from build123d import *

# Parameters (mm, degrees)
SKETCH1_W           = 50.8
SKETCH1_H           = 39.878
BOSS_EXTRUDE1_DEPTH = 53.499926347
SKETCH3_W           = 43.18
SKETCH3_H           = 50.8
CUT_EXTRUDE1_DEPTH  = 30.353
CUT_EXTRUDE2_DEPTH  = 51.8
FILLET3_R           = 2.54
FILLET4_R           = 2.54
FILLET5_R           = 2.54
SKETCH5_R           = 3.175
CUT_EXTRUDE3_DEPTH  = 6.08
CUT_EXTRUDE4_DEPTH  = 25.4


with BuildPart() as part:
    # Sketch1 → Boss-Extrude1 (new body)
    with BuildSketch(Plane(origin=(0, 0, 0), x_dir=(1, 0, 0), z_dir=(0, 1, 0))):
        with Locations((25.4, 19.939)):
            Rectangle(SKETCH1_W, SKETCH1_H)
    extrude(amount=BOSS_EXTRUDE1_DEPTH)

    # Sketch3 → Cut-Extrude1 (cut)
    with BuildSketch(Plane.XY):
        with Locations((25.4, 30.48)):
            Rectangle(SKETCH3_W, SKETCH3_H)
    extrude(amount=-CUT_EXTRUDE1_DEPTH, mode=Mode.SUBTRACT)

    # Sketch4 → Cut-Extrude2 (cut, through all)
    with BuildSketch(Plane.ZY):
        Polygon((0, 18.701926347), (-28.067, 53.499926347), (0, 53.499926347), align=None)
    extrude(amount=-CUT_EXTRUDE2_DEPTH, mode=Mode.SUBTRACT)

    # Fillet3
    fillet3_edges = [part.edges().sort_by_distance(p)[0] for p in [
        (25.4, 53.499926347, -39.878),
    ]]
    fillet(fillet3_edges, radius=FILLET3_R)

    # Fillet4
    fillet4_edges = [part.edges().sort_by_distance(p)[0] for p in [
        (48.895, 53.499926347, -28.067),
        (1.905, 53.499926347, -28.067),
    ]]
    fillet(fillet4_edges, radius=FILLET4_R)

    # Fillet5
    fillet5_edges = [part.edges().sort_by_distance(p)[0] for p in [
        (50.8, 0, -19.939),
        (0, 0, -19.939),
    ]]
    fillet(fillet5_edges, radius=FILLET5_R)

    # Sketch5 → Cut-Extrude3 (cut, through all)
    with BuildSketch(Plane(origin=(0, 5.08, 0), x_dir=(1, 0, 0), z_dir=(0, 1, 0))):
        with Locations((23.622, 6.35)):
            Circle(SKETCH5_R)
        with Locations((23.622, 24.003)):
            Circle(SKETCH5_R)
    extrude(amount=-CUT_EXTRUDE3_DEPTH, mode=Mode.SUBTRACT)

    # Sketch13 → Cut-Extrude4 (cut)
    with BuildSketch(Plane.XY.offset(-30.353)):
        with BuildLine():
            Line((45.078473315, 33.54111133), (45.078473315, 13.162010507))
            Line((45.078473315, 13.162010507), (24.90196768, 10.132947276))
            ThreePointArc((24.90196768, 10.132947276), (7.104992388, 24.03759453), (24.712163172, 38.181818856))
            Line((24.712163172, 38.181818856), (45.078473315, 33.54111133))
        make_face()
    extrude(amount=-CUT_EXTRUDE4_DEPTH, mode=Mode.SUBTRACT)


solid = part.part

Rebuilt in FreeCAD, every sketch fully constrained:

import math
import FreeCAD as App
import Part
import Sketcher

V = App.Vector
Q = App.Units.Quantity


def edges_at(feature, points):
    """Names of the edges that pass closest to the given points."""
    edges = feature.Shape.Edges
    near = lambda p: min(range(len(edges)), key=lambda i: edges[i].distToShape(Part.Vertex(*p))[0])
    return sorted({f"Edge{near(p) + 1}" for p in points})

doc = App.newDocument("Part")
params = doc.addObject("Spreadsheet::Sheet", "Params")
for row, (alias, value) in enumerate([
    ("sketch1_width", "2 in"),
    ("sketch1_height", "1.57 in"),
    ("pad1_length", "53.499926 mm"),
    ("sketch2_height", "2 in"),
    ("sketch2_width", "1.7 in"),
    ("pocket1_length", "1.195 in"),
    ("sketch3_width", "1.37 in"),
    ("sketch3_height", "1.105 in"),
    ("fillet_radius", "0.1 in"),
    ("fillet2_radius", "0.1 in"),
    ("fillet3_radius", "0.1 in"),
    ("sketch4_diameter", "0.25 in"),
    ("pocket4_length", "1 in"),
], start=1):
    params.set(f"A{row}", alias)
    params.set(f"B{row}", "=" + value)
    params.setAlias(f"B{row}", alias)

body = doc.addObject("PartDesign::Body", "Body")

sketch1 = body.newObject("Sketcher::SketchObject", "Sketch")
sketch1.AttachmentSupport = (doc.getObject("XZ_Plane"), [""])
sketch1.MapMode = "FlatFace"
sketch1.addGeometry([
    Part.LineSegment(V(0, -40, 0), V(0, 0, 0)),
    Part.LineSegment(V(0, 0, 0), V(51, 0, 0)),
    Part.LineSegment(V(51, 0, 0), V(51, -40, 0)),
    Part.LineSegment(V(51, -40, 0), V(0, -40, 0)),
], False)
sketch1.addConstraint([
    Sketcher.Constraint("Coincident", 0, 2, 1, 1),
    Sketcher.Constraint("Coincident", 1, 2, 2, 1),
    Sketcher.Constraint("Coincident", 2, 2, 3, 1),
    Sketcher.Constraint("Coincident", 3, 2, 0, 1),
    Sketcher.Constraint("Vertical", 0),
    Sketcher.Constraint("Horizontal", 1),
    Sketcher.Constraint("Vertical", 2),
    Sketcher.Constraint("Horizontal", 3),
    Sketcher.Constraint("Coincident", 0, 2, -1, 1),
    Sketcher.Constraint("DistanceX", 1, 1, 1, 2, Q("2 in")),
    Sketcher.Constraint("DistanceY", 0, 1, 0, 2, Q("1.57 in")),
])
sketch1.setExpression("Constraints[9]", "Params.sketch1_width")
sketch1.setExpression("Constraints[10]", "Params.sketch1_height")
pad1 = body.newObject("PartDesign::Pad", "Pad")
pad1.Profile = sketch1
pad1.setExpression("Length", "Params.pad1_length")
pad1.Reversed = True

sketch2 = body.newObject("Sketcher::SketchObject", "Sketch001")
sketch2.AttachmentSupport = (doc.getObject("XY_Plane"), [""])
sketch2.MapMode = "FlatFace"
sketch2.addGeometry([
    Part.LineSegment(V(4, 56, 0), V(4, 5, 0)),
    Part.LineSegment(V(4, 5, 0), V(47, 5, 0)),
    Part.LineSegment(V(47, 5, 0), V(47, 56, 0)),
    Part.LineSegment(V(47, 56, 0), V(4, 56, 0)),
], False)
sketch2.addConstraint([
    Sketcher.Constraint("Coincident", 0, 2, 1, 1),
    Sketcher.Constraint("Coincident", 1, 2, 2, 1),
    Sketcher.Constraint("Coincident", 2, 2, 3, 1),
    Sketcher.Constraint("Coincident", 3, 2, 0, 1),
    Sketcher.Constraint("Vertical", 0),
    Sketcher.Constraint("Horizontal", 1),
    Sketcher.Constraint("Vertical", 2),
    Sketcher.Constraint("Horizontal", 3),
    Sketcher.Constraint("DistanceY", 0, 2, 0, 1, Q("2 in")),
    Sketcher.Constraint("DistanceX", 1, 1, 1, 2, Q("1.7 in")),
    Sketcher.Constraint("DistanceY", -1, 1, 0, 2, Q("0.2 in")),
    Sketcher.Constraint("DistanceX", -1, 1, 0, 2, Q("0.15 in")),
])
sketch2.setExpression("Constraints[8]", "Params.sketch2_height")
sketch2.setExpression("Constraints[9]", "Params.sketch2_width")
pocket1 = body.newObject("PartDesign::Pocket", "Pocket")
pocket1.Profile = sketch2
pocket1.setExpression("Length", "Params.pocket1_length")

sketch3 = body.newObject("Sketcher::SketchObject", "Sketch002")
sketch3.AttachmentSupport = (doc.getObject("YZ_Plane"), [""])
sketch3.MapMode = "FlatFace"
sketch3.addGeometry([
    Part.LineSegment(V(53, -28, 0), V(19, 0, 0)),
    Part.LineSegment(V(19, 0, 0), V(53, 0, 0)),
    Part.LineSegment(V(53, 0, 0), V(53, -28, 0)),
], False)
sketch3.addConstraint([
    Sketcher.Constraint("Coincident", 0, 2, 1, 1),
    Sketcher.Constraint("Coincident", 1, 2, 2, 1),
    Sketcher.Constraint("Coincident", 2, 2, 0, 1),
    Sketcher.Constraint("Horizontal", 1),
    Sketcher.Constraint("Vertical", 2),
    Sketcher.Constraint("PointOnObject", 0, 2, -1),
    Sketcher.Constraint("DistanceX", 1, 1, 1, 2, Q("1.37 in")),
    Sketcher.Constraint("DistanceY", 2, 2, 2, 1, Q("1.105 in")),
    Sketcher.Constraint("DistanceX", -1, 1, 0, 2, 18.701926),
])
sketch3.setExpression("Constraints[6]", "Params.sketch3_width")
sketch3.setExpression("Constraints[7]", "Params.sketch3_height")
pocket2 = body.newObject("PartDesign::Pocket", "Pocket001")
pocket2.Profile = sketch3
pocket2.Type = "ThroughAll"
pocket2.Reversed = True
doc.recompute()

fillet = body.newObject("PartDesign::Fillet", "Fillet")
fillet.Base = (pocket2, edges_at(pocket2, [(25.4, 53.5, -39.878)]))
fillet.setExpression("Radius", "Params.fillet_radius")
doc.recompute()

fillet2 = body.newObject("PartDesign::Fillet", "Fillet001")
fillet2.Base = (fillet, edges_at(fillet, [(48.895, 53.5, -28.067), (1.905, 53.5, -28.067)]))
fillet2.setExpression("Radius", "Params.fillet2_radius")
doc.recompute()

fillet3 = body.newObject("PartDesign::Fillet", "Fillet002")
fillet3.Base = (fillet2, edges_at(fillet2, [(50.8, 0, -19.939), (0, 0, -19.939)]))
fillet3.setExpression("Radius", "Params.fillet3_radius")

sketch4 = body.newObject("Sketcher::SketchObject", "Sketch003")
sketch4.AttachmentSupport = (doc.getObject("XZ_Plane"), [""])
sketch4.MapMode = "FlatFace"
sketch4.AttachmentOffset = App.Placement(V(0, 0, -0.2 * 25.4), App.Rotation())
sketch4.addGeometry([
    Part.Circle(V(23.6, -6.3, 0), V(0, 0, 1), 3.2),
    Part.Circle(V(23.6, -24, 0), V(0, 0, 1), 3.2),
], False)
sketch4.addConstraint([
    Sketcher.Constraint("Equal", 0, 1),
    Sketcher.Constraint("Vertical", 0, 3, 1, 3),
    Sketcher.Constraint("Diameter", 0, Q("0.25 in")),
    Sketcher.Constraint("DistanceX", -1, 1, 0, 3, Q("0.93 in")),
    Sketcher.Constraint("DistanceY", 0, 3, -1, 1, Q("0.25 in")),
    Sketcher.Constraint("DistanceY", 1, 3, -1, 1, Q("0.945 in")),
])
sketch4.setExpression("Constraints[2]", "Params.sketch4_diameter")
pocket3 = body.newObject("PartDesign::Pocket", "Pocket002")
pocket3.Profile = sketch4
pocket3.Type = "ThroughAll"
pocket3.Reversed = True

sketch5 = body.newObject("Sketcher::SketchObject", "Sketch004")
sketch5.AttachmentSupport = (doc.getObject("XY_Plane"), [""])
sketch5.MapMode = "FlatFace"
sketch5.AttachmentOffset = App.Placement(V(0, 0, -1.195 * 25.4), App.Rotation())
sketch5.addGeometry([
    Part.LineSegment(V(45, 13, 0), V(45, 34, 0)),
    Part.LineSegment(V(45, 34, 0), V(25, 38, 0)),
    Part.ArcOfCircle(Part.Circle(V(22, 24, 0), V(0, 0, 1), 14), math.radians(77), math.radians(284)),
    Part.LineSegment(V(25, 10, 0), V(45, 13, 0)),
], False)
sketch5.addConstraint([
    Sketcher.Constraint("Coincident", 0, 2, 1, 1),
    Sketcher.Constraint("Tangent", 1, 2, 2, 1),
    Sketcher.Constraint("Coincident", 2, 2, 3, 1),
    Sketcher.Constraint("Coincident", 3, 2, 0, 1),
    Sketcher.Constraint("Vertical", 0),
    Sketcher.Constraint("DistanceY", 0, 1, 0, 2, 20.379101),
    Sketcher.Constraint("DistanceY", -1, 1, 2, 3, Q("0.9502001 in")),
    Sketcher.Constraint("Radius", 2, 14.406783),
    Sketcher.Constraint("Distance", 1, 20.88834),
    Sketcher.Constraint("DistanceY", -1, 1, 0, 2, 33.541111),
    Sketcher.Constraint("DistanceX", 2, 3, 2, 2, 3.390522),
    Sketcher.Constraint("DistanceX", -1, 1, 2, 3, 21.511446),
])
pocket4 = body.newObject("PartDesign::Pocket", "Pocket003")
pocket4.Profile = sketch5
pocket4.setExpression("Length", "Params.pocket4_length")

doc.recompute()
